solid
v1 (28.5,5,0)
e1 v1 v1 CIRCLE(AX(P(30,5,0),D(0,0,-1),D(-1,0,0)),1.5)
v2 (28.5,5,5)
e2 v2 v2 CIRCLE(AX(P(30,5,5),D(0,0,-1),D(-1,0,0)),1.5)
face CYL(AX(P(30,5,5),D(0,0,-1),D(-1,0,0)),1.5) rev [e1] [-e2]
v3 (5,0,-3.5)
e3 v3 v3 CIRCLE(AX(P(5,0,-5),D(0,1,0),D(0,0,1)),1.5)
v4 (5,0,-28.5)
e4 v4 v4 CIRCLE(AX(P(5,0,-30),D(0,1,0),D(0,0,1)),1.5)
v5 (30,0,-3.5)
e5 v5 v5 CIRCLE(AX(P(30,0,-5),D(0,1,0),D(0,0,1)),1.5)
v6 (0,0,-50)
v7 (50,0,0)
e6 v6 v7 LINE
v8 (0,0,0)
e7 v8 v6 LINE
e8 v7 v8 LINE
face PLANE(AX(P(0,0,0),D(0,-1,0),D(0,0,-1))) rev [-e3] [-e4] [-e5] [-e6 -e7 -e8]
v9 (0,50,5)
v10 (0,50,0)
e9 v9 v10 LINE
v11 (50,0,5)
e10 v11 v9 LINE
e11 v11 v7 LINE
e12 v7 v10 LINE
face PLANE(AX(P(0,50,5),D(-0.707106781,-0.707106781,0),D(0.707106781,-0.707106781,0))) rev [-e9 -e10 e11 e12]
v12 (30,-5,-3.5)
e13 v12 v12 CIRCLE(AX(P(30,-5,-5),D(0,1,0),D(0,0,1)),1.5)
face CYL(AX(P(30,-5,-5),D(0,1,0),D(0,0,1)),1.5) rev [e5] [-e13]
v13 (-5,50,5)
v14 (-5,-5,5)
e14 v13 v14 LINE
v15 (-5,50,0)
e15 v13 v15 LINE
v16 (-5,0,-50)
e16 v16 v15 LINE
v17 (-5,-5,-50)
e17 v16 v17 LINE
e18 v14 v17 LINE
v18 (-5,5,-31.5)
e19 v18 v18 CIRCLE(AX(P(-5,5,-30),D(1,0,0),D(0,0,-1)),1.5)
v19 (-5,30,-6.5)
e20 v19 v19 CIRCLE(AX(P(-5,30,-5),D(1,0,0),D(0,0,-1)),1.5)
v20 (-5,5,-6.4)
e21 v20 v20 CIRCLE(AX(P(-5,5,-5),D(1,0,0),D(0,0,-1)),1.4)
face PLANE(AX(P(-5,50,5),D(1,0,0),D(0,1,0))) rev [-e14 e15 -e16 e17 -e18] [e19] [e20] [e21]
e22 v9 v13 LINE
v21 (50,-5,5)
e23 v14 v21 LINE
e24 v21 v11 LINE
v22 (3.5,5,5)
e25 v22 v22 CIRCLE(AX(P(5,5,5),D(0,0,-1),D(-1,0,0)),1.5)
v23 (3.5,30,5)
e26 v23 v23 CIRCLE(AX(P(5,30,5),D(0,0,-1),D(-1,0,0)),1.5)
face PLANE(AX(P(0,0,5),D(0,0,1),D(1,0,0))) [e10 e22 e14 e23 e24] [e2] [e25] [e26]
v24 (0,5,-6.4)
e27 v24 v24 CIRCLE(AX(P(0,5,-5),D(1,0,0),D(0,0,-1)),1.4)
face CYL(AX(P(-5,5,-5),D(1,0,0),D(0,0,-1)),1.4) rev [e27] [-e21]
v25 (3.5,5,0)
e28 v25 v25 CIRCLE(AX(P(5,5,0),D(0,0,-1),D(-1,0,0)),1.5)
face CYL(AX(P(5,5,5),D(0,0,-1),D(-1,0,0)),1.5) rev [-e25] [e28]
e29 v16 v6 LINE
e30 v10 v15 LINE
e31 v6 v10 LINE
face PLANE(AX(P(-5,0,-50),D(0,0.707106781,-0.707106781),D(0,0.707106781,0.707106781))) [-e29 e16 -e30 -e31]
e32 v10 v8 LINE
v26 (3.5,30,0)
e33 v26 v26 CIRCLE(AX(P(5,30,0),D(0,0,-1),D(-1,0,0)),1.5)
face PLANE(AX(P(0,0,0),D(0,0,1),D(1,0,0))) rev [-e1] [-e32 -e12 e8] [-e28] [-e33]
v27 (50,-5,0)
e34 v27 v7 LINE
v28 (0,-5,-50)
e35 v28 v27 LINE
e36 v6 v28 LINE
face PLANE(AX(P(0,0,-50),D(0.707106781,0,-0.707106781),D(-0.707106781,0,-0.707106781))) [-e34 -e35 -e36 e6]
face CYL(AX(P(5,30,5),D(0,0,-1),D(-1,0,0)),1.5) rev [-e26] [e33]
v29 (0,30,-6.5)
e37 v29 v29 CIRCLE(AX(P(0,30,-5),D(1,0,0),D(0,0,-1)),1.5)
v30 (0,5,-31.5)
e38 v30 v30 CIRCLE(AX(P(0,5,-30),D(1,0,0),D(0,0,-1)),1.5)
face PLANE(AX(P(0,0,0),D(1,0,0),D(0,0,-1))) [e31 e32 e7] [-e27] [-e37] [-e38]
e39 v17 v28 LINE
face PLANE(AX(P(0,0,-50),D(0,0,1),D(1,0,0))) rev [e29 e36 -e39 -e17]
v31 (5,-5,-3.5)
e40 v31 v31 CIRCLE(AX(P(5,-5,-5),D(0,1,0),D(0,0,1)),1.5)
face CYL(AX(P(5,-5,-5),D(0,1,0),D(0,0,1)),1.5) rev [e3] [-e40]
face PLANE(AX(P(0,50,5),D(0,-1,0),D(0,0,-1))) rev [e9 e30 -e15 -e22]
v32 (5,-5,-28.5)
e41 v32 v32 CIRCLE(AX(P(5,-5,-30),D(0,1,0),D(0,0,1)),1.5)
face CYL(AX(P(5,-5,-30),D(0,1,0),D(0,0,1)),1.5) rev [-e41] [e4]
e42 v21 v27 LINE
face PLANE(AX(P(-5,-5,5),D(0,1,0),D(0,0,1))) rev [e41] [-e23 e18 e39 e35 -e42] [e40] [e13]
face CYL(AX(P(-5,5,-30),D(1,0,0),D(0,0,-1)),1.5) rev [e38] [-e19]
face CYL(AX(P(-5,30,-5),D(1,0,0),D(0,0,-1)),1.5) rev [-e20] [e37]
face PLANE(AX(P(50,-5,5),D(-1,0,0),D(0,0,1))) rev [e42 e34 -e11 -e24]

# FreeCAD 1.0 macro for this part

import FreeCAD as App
import Part
import Sketcher
Q = App.Units.Quantity

doc = App.newDocument("Part")
body = doc.addObject("PartDesign::Body", "Body")

# Sketch on XY plane
sketch1 = body.newObject("Sketcher::SketchObject", "Sketch")
sketch1.AttachmentSupport = (doc.getObject("XY_Plane"), [""])
sketch1.MapMode = "FlatFace"
sketch1.addGeometry(Part.LineSegment(App.Vector(50, 0, 0), App.Vector(0, 50, 0)), False)
sketch1.addGeometry(Part.LineSegment(App.Vector(0, 50, 0), App.Vector(-5, 50, 0)), False)
sketch1.addGeometry(Part.LineSegment(App.Vector(-5, 50, 0), App.Vector(-5, -5, 0)), False)
sketch1.addGeometry(Part.LineSegment(App.Vector(-5, -5, 0), App.Vector(50, -5, 0)), False)
sketch1.addGeometry(Part.LineSegment(App.Vector(50, -5, 0), App.Vector(50, 0, 0)), False)
sketch1.addConstraint(Sketcher.Constraint("Coincident", 0, 2, 1, 1))
sketch1.addConstraint(Sketcher.Constraint("Coincident", 1, 2, 2, 1))
sketch1.addConstraint(Sketcher.Constraint("Coincident", 2, 2, 3, 1))
sketch1.addConstraint(Sketcher.Constraint("Coincident", 3, 2, 4, 1))
sketch1.addConstraint(Sketcher.Constraint("Coincident", 4, 2, 0, 1))
sketch1.addConstraint(Sketcher.Constraint("Horizontal", 1))
sketch1.addConstraint(Sketcher.Constraint("Vertical", 2))
sketch1.addConstraint(Sketcher.Constraint("Horizontal", 3))
sketch1.addConstraint(Sketcher.Constraint("Vertical", 4))
sketch1.addConstraint(Sketcher.Constraint("PointOnObject", 0, 2, -2))
sketch1.addConstraint(Sketcher.Constraint("PointOnObject", 4, 2, -1))
sketch1.addConstraint(Sketcher.Constraint("Equal", 3, 2))
sketch1.addConstraint(Sketcher.Constraint("Equal", 1, 4))
sketch1.addConstraint(Sketcher.Constraint("DistanceX", 1, 2, 1, 1, Q("5 mm")))
sketch1.addConstraint(Sketcher.Constraint("DistanceX", 3, 1, 3, 2, Q("55 mm")))
pad1 = body.newObject("PartDesign::Pad", "Pad")
pad1.Profile = sketch1
pad1.Length = 5
body2 = doc.addObject("PartDesign::Body", "Body001")

# Sketch on YZ plane
sketch2 = body2.newObject("Sketcher::SketchObject", "Sketch001")
sketch2.AttachmentSupport = (doc.getObject("YZ_Plane001"), [""])
sketch2.MapMode = "FlatFace"
sketch2.addGeometry(Part.LineSegment(App.Vector(0, 0, 0), App.Vector(0, -50, 0)), False)
sketch2.addGeometry(Part.LineSegment(App.Vector(0, -50, 0), App.Vector(50, 0, 0)), False)
sketch2.addGeometry(Part.LineSegment(App.Vector(50, 0, 0), App.Vector(0, 0, 0)), False)
sketch2.addConstraint(Sketcher.Constraint("Coincident", 0, 2, 1, 1))
sketch2.addConstraint(Sketcher.Constraint("Coincident", 1, 2, 2, 1))
sketch2.addConstraint(Sketcher.Constraint("Coincident", 2, 2, 0, 1))
sketch2.addConstraint(Sketcher.Constraint("Vertical", 0))
sketch2.addConstraint(Sketcher.Constraint("Horizontal", 2))
sketch2.addConstraint(Sketcher.Constraint("Coincident", 2, 2, -1, 1))
sketch2.addConstraint(Sketcher.Constraint("Equal", 2, 0))
sketch2.addConstraint(Sketcher.Constraint("DistanceX", 2, 2, 2, 1, Q("50 mm")))
pad2 = body2.newObject("PartDesign::Pad", "Pad001")
pad2.Profile = sketch2
pad2.Length = 5
pad2.Reversed = True

# Sketch on XY plane
sketch3 = body2.newObject("Sketcher::SketchObject", "Sketch002")
sketch3.AttachmentSupport = (doc.getObject("XY_Plane001"), [""])
sketch3.MapMode = "FlatFace"
sketch3.addGeometry(Part.LineSegment(App.Vector(-5, 0, 0), App.Vector(-5, -5, 0)), False)
sketch3.addGeometry(Part.LineSegment(App.Vector(-5, -5, 0), App.Vector(0, -5, 0)), False)
sketch3.addGeometry(Part.LineSegment(App.Vector(0, -5, 0), App.Vector(0, 0, 0)), False)
sketch3.addGeometry(Part.LineSegment(App.Vector(0, 0, 0), App.Vector(-5, 0, 0)), False)
sketch3.addConstraint(Sketcher.Constraint("Coincident", 0, 2, 1, 1))
sketch3.addConstraint(Sketcher.Constraint("Coincident", 1, 2, 2, 1))
sketch3.addConstraint(Sketcher.Constraint("Coincident", 2, 2, 3, 1))
sketch3.addConstraint(Sketcher.Constraint("Coincident", 3, 2, 0, 1))
sketch3.addConstraint(Sketcher.Constraint("Vertical", 0))
sketch3.addConstraint(Sketcher.Constraint("Horizontal", 1))
sketch3.addConstraint(Sketcher.Constraint("Vertical", 2))
sketch3.addConstraint(Sketcher.Constraint("Horizontal", 3))
sketch3.addConstraint(Sketcher.Constraint("Coincident", 2, 2, -1, 1))
sketch3.addConstraint(Sketcher.Constraint("Equal", 3, 0))
sketch3.addConstraint(Sketcher.Constraint("DistanceX", 1, 1, 1, 2, Q("5 mm")))
pad3 = body2.newObject("PartDesign::Pad", "Pad002")
pad3.Profile = sketch3
pad3.Length = 50
pad3.Reversed = True
doc.recompute()

boolean = body.newObject("PartDesign::Boolean", "Boolean")
boolean.Type = "Fuse"
boolean.addObjects([body2])

# Sketch on XZ plane
sketch4 = body.newObject("Sketcher::SketchObject", "Sketch003")
sketch4.AttachmentSupport = (doc.getObject("XZ_Plane"), [""])
sketch4.MapMode = "FlatFace"
sketch4.AttachmentOffset = App.Placement(App.Vector(0, 0, 5), App.Rotation())
sketch4.addGeometry(Part.LineSegment(App.Vector(50, 0, 0), App.Vector(0, 0, 0)), False)
sketch4.addGeometry(Part.LineSegment(App.Vector(0, 0, 0), App.Vector(0, -50, 0)), False)
sketch4.addGeometry(Part.LineSegment(App.Vector(0, -50, 0), App.Vector(50, 0, 0)), False)
sketch4.addConstraint(Sketcher.Constraint("Coincident", 0, 2, 1, 1))
sketch4.addConstraint(Sketcher.Constraint("Coincident", 1, 2, 2, 1))
sketch4.addConstraint(Sketcher.Constraint("Coincident", 2, 2, 0, 1))
sketch4.addConstraint(Sketcher.Constraint("Horizontal", 0))
sketch4.addConstraint(Sketcher.Constraint("Vertical", 1))
sketch4.addConstraint(Sketcher.Constraint("Coincident", 0, 2, -1, 1))
sketch4.addConstraint(Sketcher.Constraint("Equal", 0, 1))
sketch4.addConstraint(Sketcher.Constraint("DistanceX", 0, 2, 0, 1, Q("50 mm")))
pad4 = body.newObject("PartDesign::Pad", "Pad003")
pad4.Profile = sketch4
pad4.Length = 5
pad4.Reversed = True

# Sketch on YZ plane
sketch5 = body.newObject("Sketcher::SketchObject", "Sketch004")
sketch5.AttachmentSupport = (doc.getObject("YZ_Plane"), [""])
sketch5.MapMode = "FlatFace"
sketch5.addGeometry(Part.Circle(App.Vector(30, -5, 0), App.Vector(0, 0, 1), 1.5), False)
sketch5.addGeometry(Part.Circle(App.Vector(5, -5, 0), App.Vector(0, 0, 1), 1.4), False)
sketch5.addGeometry(Part.Circle(App.Vector(5, -30, 0), App.Vector(0, 0, 1), 1.5), False)
sketch5.addConstraint(Sketcher.Constraint("Equal", 0, 2))
sketch5.addConstraint(Sketcher.Constraint("Horizontal", 0, 3, 1, 3))
sketch5.addConstraint(Sketcher.Constraint("Vertical", 1, 3, 2, 3))
sketch5.addConstraint(Sketcher.Constraint("Diameter", 0, Q("3 mm")))
sketch5.addConstraint(Sketcher.Constraint("Diameter", 1, Q("2.8 mm")))
sketch5.addConstraint(Sketcher.Constraint("DistanceX", -1, 1, 0, 3, Q("30 mm")))
sketch5.addConstraint(Sketcher.Constraint("DistanceY", 0, 3, -1, 1, Q("5 mm")))
sketch5.addConstraint(Sketcher.Constraint("DistanceX", -1, 1, 1, 3, Q("5 mm")))
sketch5.addConstraint(Sketcher.Constraint("DistanceY", 2, 3, -1, 1, Q("30 mm")))
pocket1 = body.newObject("PartDesign::Pocket", "Pocket")
pocket1.Profile = sketch5
pocket1.Type = "ThroughAll"

# Sketch on XY plane
sketch6 = body.newObject("Sketcher::SketchObject", "Sketch005")
sketch6.AttachmentSupport = (doc.getObject("XY_Plane"), [""])
sketch6.MapMode = "FlatFace"
sketch6.addGeometry(Part.Circle(App.Vector(5, 30, 0), App.Vector(0, 0, 1), 1.5), False)
sketch6.addGeometry(Part.Circle(App.Vector(5, 5, 0), App.Vector(0, 0, 1), 1.5), False)
sketch6.addGeometry(Part.Circle(App.Vector(30, 5, 0), App.Vector(0, 0, 1), 1.5), False)
sketch6.addConstraint(Sketcher.Constraint("Equal", 0, 1))
sketch6.addConstraint(Sketcher.Constraint("Equal", 1, 2))
sketch6.addConstraint(Sketcher.Constraint("Horizontal", 1, 3, 2, 3))
sketch6.addConstraint(Sketcher.Constraint("Vertical", 0, 3, 1, 3))
sketch6.addConstraint(Sketcher.Constraint("Diameter", 0, Q("3 mm")))
sketch6.addConstraint(Sketcher.Constraint("DistanceX", -1, 1, 0, 3, Q("5 mm")))
sketch6.addConstraint(Sketcher.Constraint("DistanceY", -1, 1, 0, 3, Q("30 mm")))
sketch6.addConstraint(Sketcher.Constraint("DistanceY", -1, 1, 1, 3, Q("5 mm")))
sketch6.addConstraint(Sketcher.Constraint("DistanceX", -1, 1, 2, 3, Q("30 mm")))
pocket2 = body.newObject("PartDesign::Pocket", "Pocket001")
pocket2.Profile = sketch6
pocket2.Type = "ThroughAll"
pocket2.Reversed = True

# Sketch on XZ plane
sketch7 = body.newObject("Sketcher::SketchObject", "Sketch006")
sketch7.AttachmentSupport = (doc.getObject("XZ_Plane"), [""])
sketch7.MapMode = "FlatFace"
sketch7.addGeometry(Part.Circle(App.Vector(5, -30, 0), App.Vector(0, 0, 1), 1.5), False)
sketch7.addGeometry(Part.Circle(App.Vector(5, -5, 0), App.Vector(0, 0, 1), 1.5), False)
sketch7.addGeometry(Part.Circle(App.Vector(30, -5, 0), App.Vector(0, 0, 1), 1.5), False)
sketch7.addConstraint(Sketcher.Constraint("Equal", 0, 1))
sketch7.addConstraint(Sketcher.Constraint("Equal", 1, 2))
sketch7.addConstraint(Sketcher.Constraint("Horizontal", 1, 3, 2, 3))
sketch7.addConstraint(Sketcher.Constraint("Vertical", 0, 3, 1, 3))
sketch7.addConstraint(Sketcher.Constraint("Diameter", 0, Q("3 mm")))
sketch7.addConstraint(Sketcher.Constraint("DistanceX", -1, 1, 0, 3, Q("5 mm")))
sketch7.addConstraint(Sketcher.Constraint("DistanceY", 0, 3, -1, 1, Q("30 mm")))
sketch7.addConstraint(Sketcher.Constraint("DistanceY", 1, 3, -1, 1, Q("5 mm")))
sketch7.addConstraint(Sketcher.Constraint("DistanceX", -1, 1, 2, 3, Q("30 mm")))
pocket3 = body.newObject("PartDesign::Pocket", "Pocket002")
pocket3.Profile = sketch7
pocket3.Type = "ThroughAll"
pocket3.Reversed = True

doc.recompute()
